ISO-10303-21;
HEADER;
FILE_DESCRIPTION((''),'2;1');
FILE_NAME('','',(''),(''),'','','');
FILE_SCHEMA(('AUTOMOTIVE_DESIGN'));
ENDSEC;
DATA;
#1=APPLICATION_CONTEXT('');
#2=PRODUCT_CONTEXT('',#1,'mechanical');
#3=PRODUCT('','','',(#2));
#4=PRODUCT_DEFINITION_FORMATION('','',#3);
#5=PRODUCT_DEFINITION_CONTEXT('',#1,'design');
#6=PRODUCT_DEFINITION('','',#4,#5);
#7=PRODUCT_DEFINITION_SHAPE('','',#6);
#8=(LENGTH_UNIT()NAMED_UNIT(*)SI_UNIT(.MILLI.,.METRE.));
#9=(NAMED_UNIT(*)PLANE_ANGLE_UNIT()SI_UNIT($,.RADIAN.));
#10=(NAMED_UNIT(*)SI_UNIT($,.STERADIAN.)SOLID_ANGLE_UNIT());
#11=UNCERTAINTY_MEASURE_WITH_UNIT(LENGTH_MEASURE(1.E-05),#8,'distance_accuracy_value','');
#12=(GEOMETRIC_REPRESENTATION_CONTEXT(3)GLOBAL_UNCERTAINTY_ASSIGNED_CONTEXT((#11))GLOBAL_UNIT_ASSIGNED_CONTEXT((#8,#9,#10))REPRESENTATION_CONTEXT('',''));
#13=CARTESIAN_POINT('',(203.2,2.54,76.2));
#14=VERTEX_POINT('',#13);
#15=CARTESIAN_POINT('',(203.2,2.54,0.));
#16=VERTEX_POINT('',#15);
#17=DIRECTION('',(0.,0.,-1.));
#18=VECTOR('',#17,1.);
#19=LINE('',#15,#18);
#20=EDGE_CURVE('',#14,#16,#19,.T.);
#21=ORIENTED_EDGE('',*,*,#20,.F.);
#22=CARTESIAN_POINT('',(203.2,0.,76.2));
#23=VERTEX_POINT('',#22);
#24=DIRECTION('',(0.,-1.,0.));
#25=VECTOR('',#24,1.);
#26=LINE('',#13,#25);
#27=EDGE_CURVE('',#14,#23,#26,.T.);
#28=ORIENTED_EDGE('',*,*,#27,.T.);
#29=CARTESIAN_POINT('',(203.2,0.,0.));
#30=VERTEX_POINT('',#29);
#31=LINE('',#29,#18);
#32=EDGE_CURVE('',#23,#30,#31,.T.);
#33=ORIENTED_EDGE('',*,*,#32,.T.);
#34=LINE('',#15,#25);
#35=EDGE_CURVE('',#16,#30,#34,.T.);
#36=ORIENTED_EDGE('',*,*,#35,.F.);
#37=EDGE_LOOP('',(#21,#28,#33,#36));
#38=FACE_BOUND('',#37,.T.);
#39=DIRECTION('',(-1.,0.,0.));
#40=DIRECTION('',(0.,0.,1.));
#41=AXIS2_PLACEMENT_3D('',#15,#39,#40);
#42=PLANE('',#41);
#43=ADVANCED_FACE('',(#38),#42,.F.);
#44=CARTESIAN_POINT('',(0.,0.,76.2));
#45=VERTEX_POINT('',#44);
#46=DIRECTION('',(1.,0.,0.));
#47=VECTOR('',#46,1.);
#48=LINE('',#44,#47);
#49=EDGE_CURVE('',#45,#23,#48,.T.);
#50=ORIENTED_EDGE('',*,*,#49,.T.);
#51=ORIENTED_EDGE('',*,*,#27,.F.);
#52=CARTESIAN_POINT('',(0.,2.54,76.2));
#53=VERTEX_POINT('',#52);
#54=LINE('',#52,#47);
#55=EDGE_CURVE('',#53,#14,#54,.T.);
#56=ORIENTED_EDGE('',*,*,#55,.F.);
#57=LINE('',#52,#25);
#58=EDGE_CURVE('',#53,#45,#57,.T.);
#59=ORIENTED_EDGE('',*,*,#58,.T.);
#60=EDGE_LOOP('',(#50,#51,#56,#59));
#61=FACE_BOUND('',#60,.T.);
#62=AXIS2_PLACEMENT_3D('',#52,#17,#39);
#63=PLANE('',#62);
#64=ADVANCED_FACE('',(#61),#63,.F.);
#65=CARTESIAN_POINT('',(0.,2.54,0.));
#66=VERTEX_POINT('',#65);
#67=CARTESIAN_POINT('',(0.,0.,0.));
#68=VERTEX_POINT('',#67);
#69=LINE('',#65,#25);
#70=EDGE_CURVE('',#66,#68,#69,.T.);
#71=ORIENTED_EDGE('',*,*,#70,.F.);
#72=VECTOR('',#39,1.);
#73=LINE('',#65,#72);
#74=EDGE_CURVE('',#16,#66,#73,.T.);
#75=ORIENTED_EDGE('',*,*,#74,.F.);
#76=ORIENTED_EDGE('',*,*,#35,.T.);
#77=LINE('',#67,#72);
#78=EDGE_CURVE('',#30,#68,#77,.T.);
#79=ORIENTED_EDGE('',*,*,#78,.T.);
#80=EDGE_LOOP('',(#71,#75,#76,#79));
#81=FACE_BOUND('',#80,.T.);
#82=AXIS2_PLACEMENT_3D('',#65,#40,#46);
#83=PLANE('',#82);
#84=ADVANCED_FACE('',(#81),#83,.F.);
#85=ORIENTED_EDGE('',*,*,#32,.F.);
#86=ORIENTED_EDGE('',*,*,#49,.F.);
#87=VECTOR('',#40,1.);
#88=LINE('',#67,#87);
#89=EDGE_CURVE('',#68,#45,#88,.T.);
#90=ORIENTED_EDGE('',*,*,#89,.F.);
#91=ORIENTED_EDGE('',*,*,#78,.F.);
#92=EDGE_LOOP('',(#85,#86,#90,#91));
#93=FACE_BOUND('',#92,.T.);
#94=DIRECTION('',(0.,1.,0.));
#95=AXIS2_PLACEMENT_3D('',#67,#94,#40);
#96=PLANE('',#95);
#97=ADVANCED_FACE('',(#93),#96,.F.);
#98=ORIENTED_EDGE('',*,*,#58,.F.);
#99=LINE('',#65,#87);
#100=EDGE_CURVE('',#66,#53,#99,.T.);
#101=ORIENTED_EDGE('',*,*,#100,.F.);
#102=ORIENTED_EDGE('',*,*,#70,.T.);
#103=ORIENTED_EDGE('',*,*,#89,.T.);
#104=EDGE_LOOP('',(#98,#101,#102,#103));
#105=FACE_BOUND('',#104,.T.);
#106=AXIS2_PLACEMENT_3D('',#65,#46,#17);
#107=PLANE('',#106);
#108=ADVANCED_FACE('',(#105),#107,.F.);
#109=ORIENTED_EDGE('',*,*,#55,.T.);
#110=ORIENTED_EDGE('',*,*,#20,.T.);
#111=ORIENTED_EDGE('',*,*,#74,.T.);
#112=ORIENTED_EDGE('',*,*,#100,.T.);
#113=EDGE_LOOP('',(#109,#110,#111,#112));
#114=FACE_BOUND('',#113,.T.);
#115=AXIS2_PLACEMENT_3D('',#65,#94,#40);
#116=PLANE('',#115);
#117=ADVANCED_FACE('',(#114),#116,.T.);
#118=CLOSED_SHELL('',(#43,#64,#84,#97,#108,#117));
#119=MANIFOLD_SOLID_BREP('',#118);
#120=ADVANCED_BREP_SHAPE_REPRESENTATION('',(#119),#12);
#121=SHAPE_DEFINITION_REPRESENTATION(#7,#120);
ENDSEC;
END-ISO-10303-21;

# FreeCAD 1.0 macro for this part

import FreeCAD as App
import Part
import Sketcher
Q = App.Units.Quantity

doc = App.newDocument("Part")
body = doc.addObject("PartDesign::Body", "Body")

sketch1 = body.newObject("Sketcher::SketchObject", "Sketch")
sketch1.AttachmentSupport = (doc.getObject("XZ_Plane"), [""])
sketch1.MapMode = "FlatFace"
sketch1.addGeometry([
    Part.LineSegment(App.Vector(0, 0, 0), App.Vector(0, 76, 0)),
    Part.LineSegment(App.Vector(0, 76, 0), App.Vector(203, 76, 0)),
    Part.LineSegment(App.Vector(203, 76, 0), App.Vector(203, 0, 0)),
    Part.LineSegment(App.Vector(203, 0, 0), App.Vector(0, 0, 0)),
], False)
sketch1.addConstraint([
    Sketcher.Constraint("Coincident", 0, 2, 1, 1),
    Sketcher.Constraint("Coincident", 1, 2, 2, 1),
    Sketcher.Constraint("Coincident", 2, 2, 3, 1),
    Sketcher.Constraint("Coincident", 3, 2, 0, 1),
    Sketcher.Constraint("Vertical", 0),
    Sketcher.Constraint("Horizontal", 1),
    Sketcher.Constraint("Vertical", 2),
    Sketcher.Constraint("Horizontal", 3),
    Sketcher.Constraint("Coincident", 3, 2, -1, 1),
    Sketcher.Constraint("DistanceX", 1, 1, 1, 2, Q("8 in")),
    Sketcher.Constraint("DistanceY", 0, 1, 0, 2, Q("3 in")),
])
pad1 = body.newObject("PartDesign::Pad", "Pad")
pad1.Profile = sketch1
pad1.Length = Q("0.1 in")
pad1.Reversed = True

doc.recompute()
